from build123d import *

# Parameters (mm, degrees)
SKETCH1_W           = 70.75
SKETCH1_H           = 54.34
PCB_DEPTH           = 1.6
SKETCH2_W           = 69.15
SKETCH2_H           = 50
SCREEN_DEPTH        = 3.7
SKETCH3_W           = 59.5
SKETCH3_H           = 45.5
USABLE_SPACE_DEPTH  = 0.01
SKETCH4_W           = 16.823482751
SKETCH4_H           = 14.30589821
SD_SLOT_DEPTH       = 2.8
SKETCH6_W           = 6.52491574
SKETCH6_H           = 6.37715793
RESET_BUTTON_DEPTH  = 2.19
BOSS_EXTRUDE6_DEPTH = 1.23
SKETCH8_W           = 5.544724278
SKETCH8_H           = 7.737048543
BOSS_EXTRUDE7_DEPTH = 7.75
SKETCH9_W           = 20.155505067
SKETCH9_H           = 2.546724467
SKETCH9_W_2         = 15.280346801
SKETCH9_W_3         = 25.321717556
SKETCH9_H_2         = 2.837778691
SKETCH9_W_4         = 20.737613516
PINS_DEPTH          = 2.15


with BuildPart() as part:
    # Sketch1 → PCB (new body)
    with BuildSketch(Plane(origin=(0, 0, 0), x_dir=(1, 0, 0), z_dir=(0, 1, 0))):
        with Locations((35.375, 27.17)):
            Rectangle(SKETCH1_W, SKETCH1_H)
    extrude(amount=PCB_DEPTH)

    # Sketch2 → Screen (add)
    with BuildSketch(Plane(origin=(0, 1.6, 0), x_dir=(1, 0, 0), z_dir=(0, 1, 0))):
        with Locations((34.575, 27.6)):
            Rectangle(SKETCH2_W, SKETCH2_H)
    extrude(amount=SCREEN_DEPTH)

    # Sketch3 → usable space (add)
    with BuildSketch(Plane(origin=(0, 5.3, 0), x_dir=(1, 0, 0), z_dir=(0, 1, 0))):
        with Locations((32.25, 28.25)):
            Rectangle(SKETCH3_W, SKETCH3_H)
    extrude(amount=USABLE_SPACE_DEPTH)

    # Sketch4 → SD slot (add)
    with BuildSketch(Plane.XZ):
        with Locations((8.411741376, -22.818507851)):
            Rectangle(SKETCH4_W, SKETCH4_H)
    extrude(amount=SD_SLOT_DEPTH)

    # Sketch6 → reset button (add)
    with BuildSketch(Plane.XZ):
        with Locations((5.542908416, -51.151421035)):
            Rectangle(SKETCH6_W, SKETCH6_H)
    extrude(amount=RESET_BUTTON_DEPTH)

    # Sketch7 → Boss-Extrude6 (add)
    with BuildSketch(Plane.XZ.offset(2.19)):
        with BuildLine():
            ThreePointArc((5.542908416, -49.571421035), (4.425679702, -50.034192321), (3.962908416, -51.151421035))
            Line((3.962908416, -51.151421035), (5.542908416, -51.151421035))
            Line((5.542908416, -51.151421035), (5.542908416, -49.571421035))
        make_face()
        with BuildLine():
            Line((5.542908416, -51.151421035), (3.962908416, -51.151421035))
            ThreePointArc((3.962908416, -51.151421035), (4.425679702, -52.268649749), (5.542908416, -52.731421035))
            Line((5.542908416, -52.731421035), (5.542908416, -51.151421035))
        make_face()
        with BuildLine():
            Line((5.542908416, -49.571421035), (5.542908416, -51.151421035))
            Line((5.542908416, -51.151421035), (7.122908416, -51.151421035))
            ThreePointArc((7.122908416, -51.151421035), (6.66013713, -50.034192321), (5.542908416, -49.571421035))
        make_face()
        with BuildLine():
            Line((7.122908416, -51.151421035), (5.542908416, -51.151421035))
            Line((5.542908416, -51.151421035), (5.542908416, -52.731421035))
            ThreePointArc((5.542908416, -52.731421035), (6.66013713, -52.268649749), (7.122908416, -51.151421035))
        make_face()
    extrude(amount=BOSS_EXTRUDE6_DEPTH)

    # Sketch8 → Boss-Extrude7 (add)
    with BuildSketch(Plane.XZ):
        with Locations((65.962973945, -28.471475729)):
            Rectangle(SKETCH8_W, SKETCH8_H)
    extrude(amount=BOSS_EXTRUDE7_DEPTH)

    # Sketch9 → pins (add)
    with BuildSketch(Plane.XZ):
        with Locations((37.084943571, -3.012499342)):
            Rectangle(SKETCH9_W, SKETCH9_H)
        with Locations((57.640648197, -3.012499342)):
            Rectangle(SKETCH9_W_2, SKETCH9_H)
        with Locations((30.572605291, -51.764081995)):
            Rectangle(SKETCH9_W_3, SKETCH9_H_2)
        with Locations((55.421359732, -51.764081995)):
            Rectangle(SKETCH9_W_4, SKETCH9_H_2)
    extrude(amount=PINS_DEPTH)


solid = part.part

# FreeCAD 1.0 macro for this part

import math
import FreeCAD as App
import Part
import Sketcher

doc = App.newDocument("Part")
body = doc.addObject("PartDesign::Body", "Body")

# Sketch on XZ plane
sketch1 = doc.addObject("Sketcher::SketchObject", "Sketch")
body.addObject(sketch1)
sketch1.AttachmentSupport = (doc.XZ_Plane, [""])
sketch1.MapMode = "FlatFace"
sketch1.addGeometry(Part.LineSegment(App.Vector(0, -54, 0), App.Vector(0, 0, 0)), False)
sketch1.addGeometry(Part.LineSegment(App.Vector(0, 0, 0), App.Vector(71, 0, 0)), False)
sketch1.addGeometry(Part.LineSegment(App.Vector(71, 0, 0), App.Vector(71, -54, 0)), False)
sketch1.addGeometry(Part.LineSegment(App.Vector(71, -54, 0), App.Vector(0, -54, 0)), False)
sketch1.addConstraint(Sketcher.Constraint("Coincident", 0, 2, 1, 1))
sketch1.addConstraint(Sketcher.Constraint("Coincident", 1, 2, 2, 1))
sketch1.addConstraint(Sketcher.Constraint("Coincident", 2, 2, 3, 1))
sketch1.addConstraint(Sketcher.Constraint("Coincident", 3, 2, 0, 1))
sketch1.addConstraint(Sketcher.Constraint("Vertical", 0))
sketch1.addConstraint(Sketcher.Constraint("Horizontal", 1))
sketch1.addConstraint(Sketcher.Constraint("Vertical", 2))
sketch1.addConstraint(Sketcher.Constraint("Horizontal", 3))
sketch1.addConstraint(Sketcher.Constraint("Coincident", 0, 2, -1, 1))
sketch1.addConstraint(Sketcher.Constraint("DistanceX", 1, 1, 1, 2, 70.75))
sketch1.addConstraint(Sketcher.Constraint("DistanceY", 0, 1, 0, 2, 54.34))
pad1 = doc.addObject("PartDesign::Pad", "Pad")
body.addObject(pad1)
pad1.Profile = sketch1
pad1.Length = 1.6
pad1.Reversed = True

# Sketch on XZ plane
sketch2 = doc.addObject("Sketcher::SketchObject", "Sketch001")
body.addObject(sketch2)
sketch2.AttachmentSupport = (doc.XZ_Plane, [""])
sketch2.MapMode = "FlatFace"
sketch2.AttachmentOffset = App.Placement(App.Vector(0, 0, -1.6), App.Rotation())
sketch2.addGeometry(Part.LineSegment(App.Vector(0, -53, 0), App.Vector(0, -3, 0)), False)
sketch2.addGeometry(Part.LineSegment(App.Vector(0, -3, 0), App.Vector(69, -3, 0)), False)
sketch2.addGeometry(Part.LineSegment(App.Vector(69, -3, 0), App.Vector(69, -53, 0)), False)
sketch2.addGeometry(Part.LineSegment(App.Vector(69, -53, 0), App.Vector(0, -53, 0)), False)
sketch2.addConstraint(Sketcher.Constraint("Coincident", 0, 2, 1, 1))
sketch2.addConstraint(Sketcher.Constraint("Coincident", 1, 2, 2, 1))
sketch2.addConstraint(Sketcher.Constraint("Coincident", 2, 2, 3, 1))
sketch2.addConstraint(Sketcher.Constraint("Coincident", 3, 2, 0, 1))
sketch2.addConstraint(Sketcher.Constraint("Vertical", 0))
sketch2.addConstraint(Sketcher.Constraint("Horizontal", 1))
sketch2.addConstraint(Sketcher.Constraint("Vertical", 2))
sketch2.addConstraint(Sketcher.Constraint("Horizontal", 3))
sketch2.addConstraint(Sketcher.Constraint("PointOnObject", 0, 2, -2))
sketch2.addConstraint(Sketcher.Constraint("DistanceY", 0, 1, 0, 2, 50.0))
sketch2.addConstraint(Sketcher.Constraint("DistanceX", 1, 1, 1, 2, 69.15))
sketch2.addConstraint(Sketcher.Constraint("DistanceY", 0, 2, -1, 1, 2.6))
pad2 = doc.addObject("PartDesign::Pad", "Pad001")
body.addObject(pad2)
pad2.Profile = sketch2
pad2.Length = 3.7
pad2.Reversed = True

# Sketch on XZ plane
sketch3 = doc.addObject("Sketcher::SketchObject", "Sketch002")
body.addObject(sketch3)
sketch3.AttachmentSupport = (doc.XZ_Plane, [""])
sketch3.MapMode = "FlatFace"
sketch3.AttachmentOffset = App.Placement(App.Vector(0, 0, -5.3), App.Rotation())
sketch3.addGeometry(Part.LineSegment(App.Vector(2, -51, 0), App.Vector(2, -6, 0)), False)
sketch3.addGeometry(Part.LineSegment(App.Vector(2, -6, 0), App.Vector(62, -6, 0)), False)
sketch3.addGeometry(Part.LineSegment(App.Vector(62, -6, 0), App.Vector(62, -51, 0)), False)
sketch3.addGeometry(Part.LineSegment(App.Vector(62, -51, 0), App.Vector(2, -51, 0)), False)
sketch3.addConstraint(Sketcher.Constraint("Coincident", 0, 2, 1, 1))
sketch3.addConstraint(Sketcher.Constraint("Coincident", 1, 2, 2, 1))
sketch3.addConstraint(Sketcher.Constraint("Coincident", 2, 2, 3, 1))
sketch3.addConstraint(Sketcher.Constraint("Coincident", 3, 2, 0, 1))
sketch3.addConstraint(Sketcher.Constraint("Vertical", 0))
sketch3.addConstraint(Sketcher.Constraint("Horizontal", 1))
sketch3.addConstraint(Sketcher.Constraint("Vertical", 2))
sketch3.addConstraint(Sketcher.Constraint("Horizontal", 3))
sketch3.addConstraint(Sketcher.Constraint("DistanceX", 1, 1, 1, 2, 59.5))
sketch3.addConstraint(Sketcher.Constraint("DistanceY", 0, 1, 0, 2, 45.5))
sketch3.addConstraint(Sketcher.Constraint("DistanceX", -1, 1, 1, 2, 62.0))
sketch3.addConstraint(Sketcher.Constraint("DistanceY", 2, 2, -1, 1, 51.0))
pad3 = doc.addObject("PartDesign::Pad", "Pad002")
body.addObject(pad3)
pad3.Profile = sketch3
pad3.Length = 0.01
pad3.Reversed = True

# Sketch on XZ plane
sketch4 = doc.addObject("Sketcher::SketchObject", "Sketch003")
body.addObject(sketch4)
sketch4.AttachmentSupport = (doc.XZ_Plane, [""])
sketch4.MapMode = "FlatFace"
sketch4.addGeometry(Part.LineSegment(App.Vector(0, -16, 0), App.Vector(0, -30, 0)), False)
sketch4.addGeometry(Part.LineSegment(App.Vector(0, -30, 0), App.Vector(17, -30, 0)), False)
sketch4.addGeometry(Part.LineSegment(App.Vector(17, -30, 0), App.Vector(17, -16, 0)), False)
sketch4.addGeometry(Part.LineSegment(App.Vector(17, -16, 0), App.Vector(0, -16, 0)), False)
sketch4.addConstraint(Sketcher.Constraint("Coincident", 0, 2, 1, 1))
sketch4.addConstraint(Sketcher.Constraint("Coincident", 1, 2, 2, 1))
sketch4.addConstraint(Sketcher.Constraint("Coincident", 2, 2, 3, 1))
sketch4.addConstraint(Sketcher.Constraint("Coincident", 3, 2, 0, 1))
sketch4.addConstraint(Sketcher.Constraint("Vertical", 0))
sketch4.addConstraint(Sketcher.Constraint("Horizontal", 1))
sketch4.addConstraint(Sketcher.Constraint("Vertical", 2))
sketch4.addConstraint(Sketcher.Constraint("Horizontal", 3))
sketch4.addConstraint(Sketcher.Constraint("PointOnObject", 0, 2, -2))
sketch4.addConstraint(Sketcher.Constraint("DistanceY", 0, 2, 0, 1, 14.305898))
sketch4.addConstraint(Sketcher.Constraint("DistanceX", 1, 1, 1, 2, 16.823483))
sketch4.addConstraint(Sketcher.Constraint("DistanceY", 2, 2, -1, 1, 15.665559))
pad4 = doc.addObject("PartDesign::Pad", "Pad003")
body.addObject(pad4)
pad4.Profile = sketch4
pad4.Length = 2.8

# Sketch on XZ plane
sketch5 = doc.addObject("Sketcher::SketchObject", "Sketch004")
body.addObject(sketch5)
sketch5.AttachmentSupport = (doc.XZ_Plane, [""])
sketch5.MapMode = "FlatFace"
sketch5.addGeometry(Part.LineSegment(App.Vector(2, -48, 0), App.Vector(2, -54, 0)), False)
sketch5.addGeometry(Part.LineSegment(App.Vector(2, -54, 0), App.Vector(9, -54, 0)), False)
sketch5.addGeometry(Part.LineSegment(App.Vector(9, -54, 0), App.Vector(9, -48, 0)), False)
sketch5.addGeometry(Part.LineSegment(App.Vector(9, -48, 0), App.Vector(2, -48, 0)), False)
sketch5.addConstraint(Sketcher.Constraint("Coincident", 0, 2, 1, 1))
sketch5.addConstraint(Sketcher.Constraint("Coincident", 1, 2, 2, 1))
sketch5.addConstraint(Sketcher.Constraint("Coincident", 2, 2, 3, 1))
sketch5.addConstraint(Sketcher.Constraint("Coincident", 3, 2, 0, 1))
sketch5.addConstraint(Sketcher.Constraint("Vertical", 0))
sketch5.addConstraint(Sketcher.Constraint("Horizontal", 1))
sketch5.addConstraint(Sketcher.Constraint("Vertical", 2))
sketch5.addConstraint(Sketcher.Constraint("Horizontal", 3))
sketch5.addConstraint(Sketcher.Constraint("DistanceY", 0, 2, -1, 1, 54.34))
sketch5.addConstraint(Sketcher.Constraint("DistanceX", 1, 1, 1, 2, 6.524916))
sketch5.addConstraint(Sketcher.Constraint("DistanceY", 0, 2, 0, 1, 6.377158))
sketch5.addConstraint(Sketcher.Constraint("DistanceX", -1, 1, 0, 2, 2.280451))
pad5 = doc.addObject("PartDesign::Pad", "Pad004")
body.addObject(pad5)
pad5.Profile = sketch5
pad5.Length = 2.19

# Sketch on XZ plane
sketch6 = doc.addObject("Sketcher::SketchObject", "Sketch005")
body.addObject(sketch6)
sketch6.AttachmentSupport = (doc.XZ_Plane, [""])
sketch6.MapMode = "FlatFace"
sketch6.AttachmentOffset = App.Placement(App.Vector(0, 0, 2.19), App.Rotation())
sketch6.addGeometry(Part.ArcOfCircle(Part.Circle(App.Vector(5.5, -51.2, 0), App.Vector(0, 0, 1), 1.6), math.radians(-180), math.radians(-90)), False)
sketch6.addGeometry(Part.ArcOfCircle(Part.Circle(App.Vector(5.5, -51.2, 0), App.Vector(0, 0, 1), 1.6), math.radians(-90), math.radians(0)), False)
sketch6.addGeometry(Part.ArcOfCircle(Part.Circle(App.Vector(5.5, -51.2, 0), App.Vector(0, 0, 1), 1.6), math.radians(0), math.radians(90)), False)
sketch6.addGeometry(Part.ArcOfCircle(Part.Circle(App.Vector(5.5, -51.2, 0), App.Vector(0, 0, 1), 1.6), math.radians(90), math.radians(180)), False)
sketch6.addConstraint(Sketcher.Constraint("Tangent", 0, 2, 1, 1))
sketch6.addConstraint(Sketcher.Constraint("Tangent", 1, 2, 2, 1))
sketch6.addConstraint(Sketcher.Constraint("Tangent", 2, 2, 3, 1))
sketch6.addConstraint(Sketcher.Constraint("Tangent", 3, 2, 0, 1))
sketch6.addConstraint(Sketcher.Constraint("Equal", 0, 1))
sketch6.addConstraint(Sketcher.Constraint("Horizontal", 3, 3, 1, 2))
sketch6.addConstraint(Sketcher.Constraint("Horizontal", 1, 2, 3, 2))
sketch6.addConstraint(Sketcher.Constraint("Vertical", 3, 3, 0, 2))
sketch6.addConstraint(Sketcher.Constraint("Vertical", 0, 2, 2, 2))
sketch6.addConstraint(Sketcher.Constraint("Radius", 0, 1.58))
sketch6.addConstraint(Sketcher.Constraint("DistanceX", -1, 1, 0, 3, 5.542908))
sketch6.addConstraint(Sketcher.Constraint("DistanceY", 0, 3, -1, 1, 51.151421))
pad6 = doc.addObject("PartDesign::Pad", "Pad005")
body.addObject(pad6)
pad6.Profile = sketch6
pad6.Length = 1.23

# Sketch on XZ plane
sketch7 = doc.addObject("Sketcher::SketchObject", "Sketch006")
body.addObject(sketch7)
sketch7.AttachmentSupport = (doc.XZ_Plane, [""])
sketch7.MapMode = "FlatFace"
sketch7.addGeometry(Part.LineSegment(App.Vector(63, -25, 0), App.Vector(63, -32, 0)), False)
sketch7.addGeometry(Part.LineSegment(App.Vector(63, -32, 0), App.Vector(69, -32, 0)), False)
sketch7.addGeometry(Part.LineSegment(App.Vector(69, -32, 0), App.Vector(69, -25, 0)), False)
sketch7.addGeometry(Part.LineSegment(App.Vector(69, -25, 0), App.Vector(63, -25, 0)), False)
sketch7.addConstraint(Sketcher.Constraint("Coincident", 0, 2, 1, 1))
sketch7.addConstraint(Sketcher.Constraint("Coincident", 1, 2, 2, 1))
sketch7.addConstraint(Sketcher.Constraint("Coincident", 2, 2, 3, 1))
sketch7.addConstraint(Sketcher.Constraint("Coincident", 3, 2, 0, 1))
sketch7.addConstraint(Sketcher.Constraint("Vertical", 0))
sketch7.addConstraint(Sketcher.Constraint("Horizontal", 1))
sketch7.addConstraint(Sketcher.Constraint("Vertical", 2))
sketch7.addConstraint(Sketcher.Constraint("Horizontal", 3))
sketch7.addConstraint(Sketcher.Constraint("DistanceY", 0, 2, -1, 1, 32.34))
sketch7.addConstraint(Sketcher.Constraint("DistanceY", 0, 2, 0, 1, 7.737049))
sketch7.addConstraint(Sketcher.Constraint("DistanceX", 1, 1, 1, 2, 5.544724))
sketch7.addConstraint(Sketcher.Constraint("DistanceX", -1, 1, 0, 2, 63.190612))
pad7 = doc.addObject("PartDesign::Pad", "Pad006")
body.addObject(pad7)
pad7.Profile = sketch7
pad7.Length = 7.75

# Sketch on XZ plane
sketch8 = doc.addObject("Sketcher::SketchObject", "Sketch007")
body.addObject(sketch8)
sketch8.AttachmentSupport = (doc.XZ_Plane, [""])
sketch8.MapMode = "FlatFace"
sketch8.addGeometry(Part.LineSegment(App.Vector(27, -1.7, 0), App.Vector(27, -4.3, 0)), False)
sketch8.addGeometry(Part.LineSegment(App.Vector(27, -4.3, 0), App.Vector(47.2, -4.3, 0)), False)
sketch8.addGeometry(Part.LineSegment(App.Vector(47.2, -4.3, 0), App.Vector(47.2, -1.7, 0)), False)
sketch8.addGeometry(Part.LineSegment(App.Vector(47.2, -1.7, 0), App.Vector(27, -1.7, 0)), False)
sketch8.addGeometry(Part.LineSegment(App.Vector(50, -1.7, 0), App.Vector(50, -4.3, 0)), False)
sketch8.addGeometry(Part.LineSegment(App.Vector(50, -4.3, 0), App.Vector(65.3, -4.3, 0)), False)
sketch8.addGeometry(Part.LineSegment(App.Vector(65.3, -4.3, 0), App.Vector(65.3, -1.7, 0)), False)
sketch8.addGeometry(Part.LineSegment(App.Vector(65.3, -1.7, 0), App.Vector(50, -1.7, 0)), False)
sketch8.addGeometry(Part.LineSegment(App.Vector(17.9, -50.3, 0), App.Vector(17.9, -53.2, 0)), False)
sketch8.addGeometry(Part.LineSegment(App.Vector(17.9, -53.2, 0), App.Vector(43.2, -53.2, 0)), False)
sketch8.addGeometry(Part.LineSegment(App.Vector(43.2, -53.2, 0), App.Vector(43.2, -50.3, 0)), False)
sketch8.addGeometry(Part.LineSegment(App.Vector(43.2, -50.3, 0), App.Vector(17.9, -50.3, 0)), False)
sketch8.addGeometry(Part.LineSegment(App.Vector(45.1, -50.3, 0), App.Vector(45.1, -53.2, 0)), False)
sketch8.addGeometry(Part.LineSegment(App.Vector(45.1, -53.2, 0), App.Vector(65.8, -53.2, 0)), False)
sketch8.addGeometry(Part.LineSegment(App.Vector(65.8, -53.2, 0), App.Vector(65.8, -50.3, 0)), False)
sketch8.addGeometry(Part.LineSegment(App.Vector(65.8, -50.3, 0), App.Vector(45.1, -50.3, 0)), False)
sketch8.addConstraint(Sketcher.Constraint("Coincident", 0, 2, 1, 1))
sketch8.addConstraint(Sketcher.Constraint("Coincident", 1, 2, 2, 1))
sketch8.addConstraint(Sketcher.Constraint("Coincident", 2, 2, 3, 1))
sketch8.addConstraint(Sketcher.Constraint("Coincident", 3, 2, 0, 1))
sketch8.addConstraint(Sketcher.Constraint("Coincident", 4, 2, 5, 1))
sketch8.addConstraint(Sketcher.Constraint("Coincident", 5, 2, 6, 1))
sketch8.addConstraint(Sketcher.Constraint("Coincident", 6, 2, 7, 1))
sketch8.addConstraint(Sketcher.Constraint("Coincident", 7, 2, 4, 1))
sketch8.addConstraint(Sketcher.Constraint("Coincident", 8, 2, 9, 1))
sketch8.addConstraint(Sketcher.Constraint("Coincident", 9, 2, 10, 1))
sketch8.addConstraint(Sketcher.Constraint("Coincident", 10, 2, 11, 1))
sketch8.addConstraint(Sketcher.Constraint("Coincident", 11, 2, 8, 1))
sketch8.addConstraint(Sketcher.Constraint("Coincident", 12, 2, 13, 1))
sketch8.addConstraint(Sketcher.Constraint("Coincident", 13, 2, 14, 1))
sketch8.addConstraint(Sketcher.Constraint("Coincident", 14, 2, 15, 1))
sketch8.addConstraint(Sketcher.Constraint("Coincident", 15, 2, 12, 1))
sketch8.addConstraint(Sketcher.Constraint("Vertical", 0))
sketch8.addConstraint(Sketcher.Constraint("Horizontal", 1))
sketch8.addConstraint(Sketcher.Constraint("Vertical", 2))
sketch8.addConstraint(Sketcher.Constraint("Horizontal", 3))
sketch8.addConstraint(Sketcher.Constraint("Vertical", 4))
sketch8.addConstraint(Sketcher.Constraint("Horizontal", 5))
sketch8.addConstraint(Sketcher.Constraint("Vertical", 6))
sketch8.addConstraint(Sketcher.Constraint("Horizontal", 7))
sketch8.addConstraint(Sketcher.Constraint("Vertical", 8))
sketch8.addConstraint(Sketcher.Constraint("Horizontal", 9))
sketch8.addConstraint(Sketcher.Constraint("Vertical", 10))
sketch8.addConstraint(Sketcher.Constraint("Horizontal", 11))
sketch8.addConstraint(Sketcher.Constraint("Vertical", 12))
sketch8.addConstraint(Sketcher.Constraint("Horizontal", 13))
sketch8.addConstraint(Sketcher.Constraint("Vertical", 14))
sketch8.addConstraint(Sketcher.Constraint("Horizontal", 15))
sketch8.addConstraint(Sketcher.Constraint("Horizontal", 1, 2, 4, 2))
sketch8.addConstraint(Sketcher.Constraint("Horizontal", 3, 2, 6, 2))
sketch8.addConstraint(Sketcher.Constraint("Horizontal", 9, 2, 12, 2))
sketch8.addConstraint(Sketcher.Constraint("Horizontal", 11, 2, 14, 2))
sketch8.addConstraint(Sketcher.Constraint("DistanceY", 8, 2, 8, 1, 2.837779))
sketch8.addConstraint(Sketcher.Constraint("DistanceX", 1, 1, 1, 2, 20.155505))
sketch8.addConstraint(Sketcher.Constraint("DistanceX", 5, 1, 5, 2, 15.280347))
sketch8.addConstraint(Sketcher.Constraint("DistanceX", 9, 1, 9, 2, 25.321718))
sketch8.addConstraint(Sketcher.Constraint("DistanceX", 13, 1, 13, 2, 20.737614))
sketch8.addConstraint(Sketcher.Constraint("DistanceY", 0, 2, 0, 1, 2.546724))
sketch8.addConstraint(Sketcher.Constraint("DistanceX", -1, 1, 0, 2, 27.007191))
sketch8.addConstraint(Sketcher.Constraint("DistanceY", 0, 2, -1, 1, 4.285862))
sketch8.addConstraint(Sketcher.Constraint("DistanceX", -1, 1, 5, 2, 65.280822))
sketch8.addConstraint(Sketcher.Constraint("DistanceY", 8, 2, -1, 1, 53.182971))
sketch8.addConstraint(Sketcher.Constraint("DistanceX", 8, 2, 1, 2, 29.25095))
sketch8.addConstraint(Sketcher.Constraint("DistanceX", 9, 2, 12, 2, 1.819089))
pad8 = doc.addObject("PartDesign::Pad", "Pad007")
body.addObject(pad8)
pad8.Profile = sketch8
pad8.Length = 2.15

doc.recompute()
